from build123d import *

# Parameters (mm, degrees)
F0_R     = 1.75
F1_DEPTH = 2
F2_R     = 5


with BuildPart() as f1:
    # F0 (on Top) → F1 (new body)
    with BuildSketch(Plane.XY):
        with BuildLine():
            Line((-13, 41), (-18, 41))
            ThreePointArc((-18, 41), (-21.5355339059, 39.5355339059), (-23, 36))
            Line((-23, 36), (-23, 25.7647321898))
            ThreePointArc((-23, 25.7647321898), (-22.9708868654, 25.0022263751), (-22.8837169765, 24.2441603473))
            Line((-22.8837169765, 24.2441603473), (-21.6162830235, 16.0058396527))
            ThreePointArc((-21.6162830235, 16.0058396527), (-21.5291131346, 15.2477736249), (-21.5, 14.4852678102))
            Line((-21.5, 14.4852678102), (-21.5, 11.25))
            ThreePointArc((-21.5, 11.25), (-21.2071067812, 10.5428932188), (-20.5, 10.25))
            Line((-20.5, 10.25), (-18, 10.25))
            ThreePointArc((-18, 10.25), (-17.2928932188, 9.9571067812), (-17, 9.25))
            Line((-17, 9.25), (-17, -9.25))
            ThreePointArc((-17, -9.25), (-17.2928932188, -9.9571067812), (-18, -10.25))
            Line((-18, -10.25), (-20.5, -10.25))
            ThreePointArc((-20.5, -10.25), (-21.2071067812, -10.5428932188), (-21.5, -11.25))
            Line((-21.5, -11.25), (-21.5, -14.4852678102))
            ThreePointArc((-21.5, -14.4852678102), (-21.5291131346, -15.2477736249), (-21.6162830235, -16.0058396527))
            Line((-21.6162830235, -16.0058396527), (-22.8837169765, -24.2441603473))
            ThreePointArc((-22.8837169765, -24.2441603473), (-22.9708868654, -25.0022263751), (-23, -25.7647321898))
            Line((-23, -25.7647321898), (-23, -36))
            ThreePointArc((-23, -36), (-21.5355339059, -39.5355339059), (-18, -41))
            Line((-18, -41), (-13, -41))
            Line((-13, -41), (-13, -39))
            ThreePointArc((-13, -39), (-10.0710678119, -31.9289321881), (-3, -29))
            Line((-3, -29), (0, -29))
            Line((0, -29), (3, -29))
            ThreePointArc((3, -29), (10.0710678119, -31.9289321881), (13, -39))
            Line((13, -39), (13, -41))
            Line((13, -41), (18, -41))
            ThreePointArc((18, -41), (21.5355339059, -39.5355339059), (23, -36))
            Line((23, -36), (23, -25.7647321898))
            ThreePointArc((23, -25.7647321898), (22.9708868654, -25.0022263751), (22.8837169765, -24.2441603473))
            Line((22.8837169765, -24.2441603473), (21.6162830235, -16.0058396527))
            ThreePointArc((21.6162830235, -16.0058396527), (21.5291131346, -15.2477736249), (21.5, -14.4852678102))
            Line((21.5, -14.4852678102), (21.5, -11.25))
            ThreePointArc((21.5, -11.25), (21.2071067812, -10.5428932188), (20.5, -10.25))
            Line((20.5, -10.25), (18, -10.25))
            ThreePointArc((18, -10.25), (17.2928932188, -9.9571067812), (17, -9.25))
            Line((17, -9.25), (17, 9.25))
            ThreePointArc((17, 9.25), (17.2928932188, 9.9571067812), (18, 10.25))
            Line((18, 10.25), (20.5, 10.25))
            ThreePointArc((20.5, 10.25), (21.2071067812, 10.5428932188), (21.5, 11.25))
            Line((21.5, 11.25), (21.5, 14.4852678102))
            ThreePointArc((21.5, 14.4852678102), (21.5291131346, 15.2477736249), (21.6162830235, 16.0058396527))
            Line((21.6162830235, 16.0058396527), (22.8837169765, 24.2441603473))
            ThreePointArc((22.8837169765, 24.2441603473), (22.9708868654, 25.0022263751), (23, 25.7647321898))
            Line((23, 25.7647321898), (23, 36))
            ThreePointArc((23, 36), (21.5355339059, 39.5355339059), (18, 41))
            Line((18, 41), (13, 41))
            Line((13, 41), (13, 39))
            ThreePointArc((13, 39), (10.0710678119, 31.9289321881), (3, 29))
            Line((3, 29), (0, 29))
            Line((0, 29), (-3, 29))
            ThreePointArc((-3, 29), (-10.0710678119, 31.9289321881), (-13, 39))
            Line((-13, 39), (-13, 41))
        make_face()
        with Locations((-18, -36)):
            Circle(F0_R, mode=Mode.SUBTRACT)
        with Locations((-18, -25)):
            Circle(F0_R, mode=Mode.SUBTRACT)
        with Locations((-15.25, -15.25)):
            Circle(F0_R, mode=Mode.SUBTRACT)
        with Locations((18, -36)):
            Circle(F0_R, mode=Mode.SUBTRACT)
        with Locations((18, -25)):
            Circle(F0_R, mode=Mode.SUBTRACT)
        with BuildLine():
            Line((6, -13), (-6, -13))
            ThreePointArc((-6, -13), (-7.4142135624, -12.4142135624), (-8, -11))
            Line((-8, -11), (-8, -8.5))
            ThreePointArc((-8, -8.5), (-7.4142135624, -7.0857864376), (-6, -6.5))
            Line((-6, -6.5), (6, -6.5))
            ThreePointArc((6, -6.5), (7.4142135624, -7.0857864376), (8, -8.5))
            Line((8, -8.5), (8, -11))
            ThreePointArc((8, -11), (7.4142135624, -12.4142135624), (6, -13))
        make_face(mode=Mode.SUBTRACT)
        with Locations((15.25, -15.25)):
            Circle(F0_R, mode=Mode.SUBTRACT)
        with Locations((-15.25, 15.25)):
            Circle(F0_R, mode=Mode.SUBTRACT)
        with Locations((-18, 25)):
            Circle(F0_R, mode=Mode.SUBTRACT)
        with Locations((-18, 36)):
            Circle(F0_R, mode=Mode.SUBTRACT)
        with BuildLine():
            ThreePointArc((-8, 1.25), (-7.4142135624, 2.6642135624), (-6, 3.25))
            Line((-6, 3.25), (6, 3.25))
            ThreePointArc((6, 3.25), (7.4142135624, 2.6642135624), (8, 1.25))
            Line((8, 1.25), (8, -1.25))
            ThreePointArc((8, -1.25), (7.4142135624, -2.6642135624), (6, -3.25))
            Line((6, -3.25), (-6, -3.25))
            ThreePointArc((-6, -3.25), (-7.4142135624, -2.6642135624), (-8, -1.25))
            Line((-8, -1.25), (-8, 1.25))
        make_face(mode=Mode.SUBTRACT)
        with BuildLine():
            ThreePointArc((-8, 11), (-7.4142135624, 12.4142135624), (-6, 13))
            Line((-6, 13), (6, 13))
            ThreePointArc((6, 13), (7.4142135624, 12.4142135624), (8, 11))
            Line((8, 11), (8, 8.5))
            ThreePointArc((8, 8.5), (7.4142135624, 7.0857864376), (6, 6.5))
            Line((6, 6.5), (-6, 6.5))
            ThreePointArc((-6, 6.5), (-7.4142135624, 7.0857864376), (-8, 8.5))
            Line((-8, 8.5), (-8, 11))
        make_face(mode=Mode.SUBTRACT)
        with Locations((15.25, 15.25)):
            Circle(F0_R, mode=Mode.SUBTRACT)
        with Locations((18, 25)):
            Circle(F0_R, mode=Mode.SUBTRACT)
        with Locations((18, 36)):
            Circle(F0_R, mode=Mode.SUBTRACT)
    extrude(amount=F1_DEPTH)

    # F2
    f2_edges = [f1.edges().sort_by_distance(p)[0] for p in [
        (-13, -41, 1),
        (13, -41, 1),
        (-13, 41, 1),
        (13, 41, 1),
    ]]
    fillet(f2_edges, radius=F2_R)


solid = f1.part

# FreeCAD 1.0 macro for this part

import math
import FreeCAD as App
import Part
import Sketcher
Q = App.Units.Quantity


def edges_at(feature, points):
    """Names of the edges that pass closest to the given points."""
    edges = feature.Shape.Edges
    near = lambda p: min(range(len(edges)), key=lambda i: edges[i].distToShape(Part.Vertex(*p))[0])
    return sorted({f"Edge{near(p) + 1}" for p in points})

doc = App.newDocument("Part")
body = doc.addObject("PartDesign::Body", "Body")

# Sketch on XY plane
sketch1 = body.newObject("Sketcher::SketchObject", "Sketch")
sketch1.AttachmentSupport = (doc.getObject("XY_Plane"), [""])
sketch1.MapMode = "FlatFace"
sketch1.addGeometry(Part.LineSegment(App.Vector(-13, 41, 0), App.Vector(-18, 41, 0)), False)
sketch1.addGeometry(Part.ArcOfCircle(Part.Circle(App.Vector(-18, 36, 0), App.Vector(0, 0, 1), 5), math.radians(90), math.radians(180)), False)
sketch1.addGeometry(Part.LineSegment(App.Vector(-23, 36, 0), App.Vector(-23, 25.8, 0)), False)
sketch1.addGeometry(Part.ArcOfCircle(Part.Circle(App.Vector(-13, 25.8, 0), App.Vector(0, 0, 1), 10), math.radians(180), math.radians(188.75)), False)
sketch1.addGeometry(Part.LineSegment(App.Vector(-22.9, 24.2, 0), App.Vector(-21.6, 16, 0)), False)
sketch1.addGeometry(Part.ArcOfCircle(Part.Circle(App.Vector(-31.5, 14.5, 0), App.Vector(0, 0, 1), 10), math.radians(0), math.radians(8.75)), False)
sketch1.addGeometry(Part.LineSegment(App.Vector(-21.5, 14.5, 0), App.Vector(-21.5, 11.2, 0)), False)
sketch1.addGeometry(Part.ArcOfCircle(Part.Circle(App.Vector(-20.5, 11.2, 0), App.Vector(0, 0, 1), 1), math.radians(180), math.radians(270)), False)
sketch1.addGeometry(Part.LineSegment(App.Vector(-20.5, 10.2, 0), App.Vector(-18, 10.2, 0)), False)
sketch1.addGeometry(Part.ArcOfCircle(Part.Circle(App.Vector(-18, 9.2, 0), App.Vector(0, 0, 1), 1), math.radians(0), math.radians(90)), False)
sketch1.addGeometry(Part.LineSegment(App.Vector(-17, 9.2, 0), App.Vector(-17, -9.2, 0)), False)
sketch1.addGeometry(Part.ArcOfCircle(Part.Circle(App.Vector(-18, -9.2, 0), App.Vector(0, 0, 1), 1), math.radians(-90), math.radians(0)), False)
sketch1.addGeometry(Part.LineSegment(App.Vector(-18, -10.2, 0), App.Vector(-20.5, -10.2, 0)), False)
sketch1.addGeometry(Part.ArcOfCircle(Part.Circle(App.Vector(-20.5, -11.2, 0), App.Vector(0, 0, 1), 1), math.radians(90), math.radians(180)), False)
sketch1.addGeometry(Part.LineSegment(App.Vector(-21.5, -11.2, 0), App.Vector(-21.5, -14.5, 0)), False)
sketch1.addGeometry(Part.ArcOfCircle(Part.Circle(App.Vector(-31.5, -14.5, 0), App.Vector(0, 0, 1), 10), math.radians(-8.75), math.radians(0)), False)
sketch1.addGeometry(Part.LineSegment(App.Vector(-21.6, -16, 0), App.Vector(-22.9, -24.2, 0)), False)
sketch1.addGeometry(Part.ArcOfCircle(Part.Circle(App.Vector(-13, -25.8, 0), App.Vector(0, 0, 1), 10), math.radians(171.25), math.radians(180)), False)
sketch1.addGeometry(Part.LineSegment(App.Vector(-23, -25.8, 0), App.Vector(-23, -36, 0)), False)
sketch1.addGeometry(Part.ArcOfCircle(Part.Circle(App.Vector(-18, -36, 0), App.Vector(0, 0, 1), 5), math.radians(180), math.radians(270)), False)
sketch1.addGeometry(Part.LineSegment(App.Vector(-18, -41, 0), App.Vector(-13, -41, 0)), False)
sketch1.addGeometry(Part.LineSegment(App.Vector(-13, -41, 0), App.Vector(-13, -39, 0)), False)
sketch1.addGeometry(Part.ArcOfCircle(Part.Circle(App.Vector(-3, -39, 0), App.Vector(0, 0, 1), 10), math.radians(90), math.radians(180)), False)
sketch1.addGeometry(Part.LineSegment(App.Vector(-3, -29, 0), App.Vector(3, -29, 0)), False)
sketch1.addGeometry(Part.ArcOfCircle(Part.Circle(App.Vector(3, -39, 0), App.Vector(0, 0, 1), 10), math.radians(0), math.radians(90)), False)
sketch1.addGeometry(Part.LineSegment(App.Vector(13, -39, 0), App.Vector(13, -41, 0)), False)
sketch1.addGeometry(Part.LineSegment(App.Vector(13, -41, 0), App.Vector(18, -41, 0)), False)
sketch1.addGeometry(Part.ArcOfCircle(Part.Circle(App.Vector(18, -36, 0), App.Vector(0, 0, 1), 5), math.radians(-90), math.radians(0)), False)
sketch1.addGeometry(Part.LineSegment(App.Vector(23, -36, 0), App.Vector(23, -25.8, 0)), False)
sketch1.addGeometry(Part.ArcOfCircle(Part.Circle(App.Vector(13, -25.8, 0), App.Vector(0, 0, 1), 10), math.radians(0), math.radians(8.75)), False)
sketch1.addGeometry(Part.LineSegment(App.Vector(22.9, -24.2, 0), App.Vector(21.6, -16, 0)), False)
sketch1.addGeometry(Part.ArcOfCircle(Part.Circle(App.Vector(31.5, -14.5, 0), App.Vector(0, 0, 1), 10), math.radians(180), math.radians(188.75)), False)
sketch1.addGeometry(Part.LineSegment(App.Vector(21.5, -14.5, 0), App.Vector(21.5, -11.2, 0)), False)
sketch1.addGeometry(Part.ArcOfCircle(Part.Circle(App.Vector(20.5, -11.2, 0), App.Vector(0, 0, 1), 1), math.radians(0), math.radians(90)), False)
sketch1.addGeometry(Part.LineSegment(App.Vector(20.5, -10.2, 0), App.Vector(18, -10.2, 0)), False)
sketch1.addGeometry(Part.ArcOfCircle(Part.Circle(App.Vector(18, -9.2, 0), App.Vector(0, 0, 1), 1), math.radians(180), math.radians(270)), False)
sketch1.addGeometry(Part.LineSegment(App.Vector(17, -9.2, 0), App.Vector(17, 9.2, 0)), False)
sketch1.addGeometry(Part.ArcOfCircle(Part.Circle(App.Vector(18, 9.2, 0), App.Vector(0, 0, 1), 1), math.radians(90), math.radians(180)), False)
sketch1.addGeometry(Part.LineSegment(App.Vector(18, 10.2, 0), App.Vector(20.5, 10.2, 0)), False)
sketch1.addGeometry(Part.ArcOfCircle(Part.Circle(App.Vector(20.5, 11.2, 0), App.Vector(0, 0, 1), 1), math.radians(-90), math.radians(0)), False)
sketch1.addGeometry(Part.LineSegment(App.Vector(21.5, 11.2, 0), App.Vector(21.5, 14.5, 0)), False)
sketch1.addGeometry(Part.ArcOfCircle(Part.Circle(App.Vector(31.5, 14.5, 0), App.Vector(0, 0, 1), 10), math.radians(171.25), math.radians(180)), False)
sketch1.addGeometry(Part.LineSegment(App.Vector(21.6, 16, 0), App.Vector(22.9, 24.2, 0)), False)
sketch1.addGeometry(Part.ArcOfCircle(Part.Circle(App.Vector(13, 25.8, 0), App.Vector(0, 0, 1), 10), math.radians(-8.75), math.radians(0)), False)
sketch1.addGeometry(Part.LineSegment(App.Vector(23, 25.8, 0), App.Vector(23, 36, 0)), False)
sketch1.addGeometry(Part.ArcOfCircle(Part.Circle(App.Vector(18, 36, 0), App.Vector(0, 0, 1), 5), math.radians(0), math.radians(90)), False)
sketch1.addGeometry(Part.LineSegment(App.Vector(18, 41, 0), App.Vector(13, 41, 0)), False)
sketch1.addGeometry(Part.LineSegment(App.Vector(13, 41, 0), App.Vector(13, 39, 0)), False)
sketch1.addGeometry(Part.ArcOfCircle(Part.Circle(App.Vector(3, 39, 0), App.Vector(0, 0, 1), 10), math.radians(-90), math.radians(0)), False)
sketch1.addGeometry(Part.LineSegment(App.Vector(3, 29, 0), App.Vector(-3, 29, 0)), False)
sketch1.addGeometry(Part.ArcOfCircle(Part.Circle(App.Vector(-3, 39, 0), App.Vector(0, 0, 1), 10), math.radians(180), math.radians(270)), False)
sketch1.addGeometry(Part.LineSegment(App.Vector(-13, 39, 0), App.Vector(-13, 41, 0)), False)
sketch1.addGeometry(Part.Circle(App.Vector(-18, -36, 0), App.Vector(0, 0, 1), 1.8), False)
sketch1.addGeometry(Part.Circle(App.Vector(-18, -25, 0), App.Vector(0, 0, 1), 1.8), False)
sketch1.addGeometry(Part.Circle(App.Vector(-15.2, -15.2, 0), App.Vector(0, 0, 1), 1.8), False)
sketch1.addGeometry(Part.Circle(App.Vector(18, -36, 0), App.Vector(0, 0, 1), 1.8), False)
sketch1.addGeometry(Part.Circle(App.Vector(18, -25, 0), App.Vector(0, 0, 1), 1.8), False)
sketch1.addGeometry(Part.ArcOfCircle(Part.Circle(App.Vector(6, -11, 0), App.Vector(0, 0, 1), 2), math.radians(-90), math.radians(0)), False)
sketch1.addGeometry(Part.LineSegment(App.Vector(6, -13, 0), App.Vector(-6, -13, 0)), False)
sketch1.addGeometry(Part.ArcOfCircle(Part.Circle(App.Vector(-6, -11, 0), App.Vector(0, 0, 1), 2), math.radians(180), math.radians(270)), False)
sketch1.addGeometry(Part.LineSegment(App.Vector(-8, -11, 0), App.Vector(-8, -8.5, 0)), False)
sketch1.addGeometry(Part.ArcOfCircle(Part.Circle(App.Vector(-6, -8.5, 0), App.Vector(0, 0, 1), 2), math.radians(90), math.radians(180)), False)
sketch1.addGeometry(Part.LineSegment(App.Vector(-6, -6.5, 0), App.Vector(6, -6.5, 0)), False)
sketch1.addGeometry(Part.ArcOfCircle(Part.Circle(App.Vector(6, -8.5, 0), App.Vector(0, 0, 1), 2), math.radians(0), math.radians(90)), False)
sketch1.addGeometry(Part.LineSegment(App.Vector(8, -8.5, 0), App.Vector(8, -11, 0)), False)
sketch1.addGeometry(Part.Circle(App.Vector(15.2, -15.2, 0), App.Vector(0, 0, 1), 1.8), False)
sketch1.addGeometry(Part.Circle(App.Vector(-15.2, 15.2, 0), App.Vector(0, 0, 1), 1.8), False)
sketch1.addGeometry(Part.Circle(App.Vector(-18, 25, 0), App.Vector(0, 0, 1), 1.8), False)
sketch1.addGeometry(Part.Circle(App.Vector(-18, 36, 0), App.Vector(0, 0, 1), 1.8), False)
sketch1.addGeometry(Part.LineSegment(App.Vector(-8, -1.2, 0), App.Vector(-8, 1.2, 0)), False)
sketch1.addGeometry(Part.ArcOfCircle(Part.Circle(App.Vector(-6, 1.2, 0), App.Vector(0, 0, 1), 2), math.radians(90), math.radians(180)), False)
sketch1.addGeometry(Part.LineSegment(App.Vector(-6, 3.2, 0), App.Vector(6, 3.2, 0)), False)
sketch1.addGeometry(Part.ArcOfCircle(Part.Circle(App.Vector(6, 1.2, 0), App.Vector(0, 0, 1), 2), math.radians(0), math.radians(90)), False)
sketch1.addGeometry(Part.LineSegment(App.Vector(8, 1.2, 0), App.Vector(8, -1.2, 0)), False)
sketch1.addGeometry(Part.ArcOfCircle(Part.Circle(App.Vector(6, -1.2, 0), App.Vector(0, 0, 1), 2), math.radians(-90), math.radians(0)), False)
sketch1.addGeometry(Part.LineSegment(App.Vector(6, -3.2, 0), App.Vector(-6, -3.2, 0)), False)
sketch1.addGeometry(Part.ArcOfCircle(Part.Circle(App.Vector(-6, -1.2, 0), App.Vector(0, 0, 1), 2), math.radians(180), math.radians(270)), False)
sketch1.addGeometry(Part.LineSegment(App.Vector(-8, 8.5, 0), App.Vector(-8, 11, 0)), False)
sketch1.addGeometry(Part.ArcOfCircle(Part.Circle(App.Vector(-6, 11, 0), App.Vector(0, 0, 1), 2), math.radians(90), math.radians(180)), False)
sketch1.addGeometry(Part.LineSegment(App.Vector(-6, 13, 0), App.Vector(6, 13, 0)), False)
sketch1.addGeometry(Part.ArcOfCircle(Part.Circle(App.Vector(6, 11, 0), App.Vector(0, 0, 1), 2), math.radians(0), math.radians(90)), False)
sketch1.addGeometry(Part.LineSegment(App.Vector(8, 11, 0), App.Vector(8, 8.5, 0)), False)
sketch1.addGeometry(Part.ArcOfCircle(Part.Circle(App.Vector(6, 8.5, 0), App.Vector(0, 0, 1), 2), math.radians(-90), math.radians(0)), False)
sketch1.addGeometry(Part.LineSegment(App.Vector(6, 6.5, 0), App.Vector(-6, 6.5, 0)), False)
sketch1.addGeometry(Part.ArcOfCircle(Part.Circle(App.Vector(-6, 8.5, 0), App.Vector(0, 0, 1), 2), math.radians(180), math.radians(270)), False)
sketch1.addGeometry(Part.Circle(App.Vector(15.2, 15.2, 0), App.Vector(0, 0, 1), 1.8), False)
sketch1.addGeometry(Part.Circle(App.Vector(18, 25, 0), App.Vector(0, 0, 1), 1.8), False)
sketch1.addGeometry(Part.Circle(App.Vector(18, 36, 0), App.Vector(0, 0, 1), 1.8), False)
sketch1.addConstraint(Sketcher.Constraint("Tangent", 0, 2, 1, 1))
sketch1.addConstraint(Sketcher.Constraint("Tangent", 1, 2, 2, 1))
sketch1.addConstraint(Sketcher.Constraint("Tangent", 2, 2, 3, 1))
sketch1.addConstraint(Sketcher.Constraint("Tangent", 3, 2, 4, 1))
sketch1.addConstraint(Sketcher.Constraint("Tangent", 4, 2, 5, 2))
sketch1.addConstraint(Sketcher.Constraint("Tangent", 5, 1, 6, 1))
sketch1.addConstraint(Sketcher.Constraint("Tangent", 6, 2, 7, 1))
sketch1.addConstraint(Sketcher.Constraint("Tangent", 7, 2, 8, 1))
sketch1.addConstraint(Sketcher.Constraint("Tangent", 8, 2, 9, 2))
sketch1.addConstraint(Sketcher.Constraint("Tangent", 9, 1, 10, 1))
sketch1.addConstraint(Sketcher.Constraint("Tangent", 10, 2, 11, 2))
sketch1.addConstraint(Sketcher.Constraint("Tangent", 11, 1, 12, 1))
sketch1.addConstraint(Sketcher.Constraint("Tangent", 12, 2, 13, 1))
sketch1.addConstraint(Sketcher.Constraint("Tangent", 13, 2, 14, 1))
sketch1.addConstraint(Sketcher.Constraint("Tangent", 14, 2, 15, 2))
sketch1.addConstraint(Sketcher.Constraint("Tangent", 15, 1, 16, 1))
sketch1.addConstraint(Sketcher.Constraint("Tangent", 16, 2, 17, 1))
sketch1.addConstraint(Sketcher.Constraint("Tangent", 17, 2, 18, 1))
sketch1.addConstraint(Sketcher.Constraint("Tangent", 18, 2, 19, 1))
sketch1.addConstraint(Sketcher.Constraint("Tangent", 19, 2, 20, 1))
sketch1.addConstraint(Sketcher.Constraint("Coincident", 20, 2, 21, 1))
sketch1.addConstraint(Sketcher.Constraint("Tangent", 21, 2, 22, 2))
sketch1.addConstraint(Sketcher.Constraint("Tangent", 22, 1, 23, 1))
sketch1.addConstraint(Sketcher.Constraint("Tangent", 23, 2, 24, 2))
sketch1.addConstraint(Sketcher.Constraint("Tangent", 24, 1, 25, 1))
sketch1.addConstraint(Sketcher.Constraint("Coincident", 25, 2, 26, 1))
sketch1.addConstraint(Sketcher.Constraint("Tangent", 26, 2, 27, 1))
sketch1.addConstraint(Sketcher.Constraint("Tangent", 27, 2, 28, 1))
sketch1.addConstraint(Sketcher.Constraint("Tangent", 28, 2, 29, 1))
sketch1.addConstraint(Sketcher.Constraint("Tangent", 29, 2, 30, 1))
sketch1.addConstraint(Sketcher.Constraint("Tangent", 30, 2, 31, 2))
sketch1.addConstraint(Sketcher.Constraint("Tangent", 31, 1, 32, 1))
sketch1.addConstraint(Sketcher.Constraint("Tangent", 32, 2, 33, 1))
sketch1.addConstraint(Sketcher.Constraint("Tangent", 33, 2, 34, 1))
sketch1.addConstraint(Sketcher.Constraint("Tangent", 34, 2, 35, 2))
sketch1.addConstraint(Sketcher.Constraint("Tangent", 35, 1, 36, 1))
sketch1.addConstraint(Sketcher.Constraint("Tangent", 36, 2, 37, 2))
sketch1.addConstraint(Sketcher.Constraint("Tangent", 37, 1, 38, 1))
sketch1.addConstraint(Sketcher.Constraint("Tangent", 38, 2, 39, 1))
sketch1.addConstraint(Sketcher.Constraint("Tangent", 39, 2, 40, 1))
sketch1.addConstraint(Sketcher.Constraint("Tangent", 40, 2, 41, 2))
sketch1.addConstraint(Sketcher.Constraint("Tangent", 41, 1, 42, 1))
sketch1.addConstraint(Sketcher.Constraint("Tangent", 42, 2, 43, 1))
sketch1.addConstraint(Sketcher.Constraint("Tangent", 43, 2, 44, 1))
sketch1.addConstraint(Sketcher.Constraint("Tangent", 44, 2, 45, 1))
sketch1.addConstraint(Sketcher.Constraint("Tangent", 45, 2, 46, 1))
sketch1.addConstraint(Sketcher.Constraint("Coincident", 46, 2, 47, 1))
sketch1.addConstraint(Sketcher.Constraint("Tangent", 47, 2, 48, 2))
sketch1.addConstraint(Sketcher.Constraint("Tangent", 48, 1, 49, 1))
sketch1.addConstraint(Sketcher.Constraint("Tangent", 49, 2, 50, 2))
sketch1.addConstraint(Sketcher.Constraint("Tangent", 50, 1, 51, 1))
sketch1.addConstraint(Sketcher.Constraint("Coincident", 51, 2, 0, 1))
sketch1.addConstraint(Sketcher.Constraint("Tangent", 57, 1, 58, 1))
sketch1.addConstraint(Sketcher.Constraint("Tangent", 58, 2, 59, 2))
sketch1.addConstraint(Sketcher.Constraint("Tangent", 59, 1, 60, 1))
sketch1.addConstraint(Sketcher.Constraint("Tangent", 60, 2, 61, 2))
sketch1.addConstraint(Sketcher.Constraint("Tangent", 61, 1, 62, 1))
sketch1.addConstraint(Sketcher.Constraint("Tangent", 62, 2, 63, 2))
sketch1.addConstraint(Sketcher.Constraint("Tangent", 63, 1, 64, 1))
sketch1.addConstraint(Sketcher.Constraint("Tangent", 64, 2, 57, 2))
sketch1.addConstraint(Sketcher.Constraint("Tangent", 69, 2, 70, 2))
sketch1.addConstraint(Sketcher.Constraint("Tangent", 70, 1, 71, 1))
sketch1.addConstraint(Sketcher.Constraint("Tangent", 71, 2, 72, 2))
sketch1.addConstraint(Sketcher.Constraint("Tangent", 72, 1, 73, 1))
sketch1.addConstraint(Sketcher.Constraint("Tangent", 73, 2, 74, 2))
sketch1.addConstraint(Sketcher.Constraint("Tangent", 74, 1, 75, 1))
sketch1.addConstraint(Sketcher.Constraint("Tangent", 75, 2, 76, 2))
sketch1.addConstraint(Sketcher.Constraint("Tangent", 76, 1, 69, 1))
sketch1.addConstraint(Sketcher.Constraint("Tangent", 77, 2, 78, 2))
sketch1.addConstraint(Sketcher.Constraint("Tangent", 78, 1, 79, 1))
sketch1.addConstraint(Sketcher.Constraint("Tangent", 79, 2, 80, 2))
sketch1.addConstraint(Sketcher.Constraint("Tangent", 80, 1, 81, 1))
sketch1.addConstraint(Sketcher.Constraint("Tangent", 81, 2, 82, 2))
sketch1.addConstraint(Sketcher.Constraint("Tangent", 82, 1, 83, 1))
sketch1.addConstraint(Sketcher.Constraint("Tangent", 83, 2, 84, 2))
sketch1.addConstraint(Sketcher.Constraint("Tangent", 84, 1, 77, 1))
sketch1.addConstraint(Sketcher.Constraint("Horizontal", 0))
sketch1.addConstraint(Sketcher.Constraint("Vertical", 2))
sketch1.addConstraint(Sketcher.Constraint("Vertical", 6))
sketch1.addConstraint(Sketcher.Constraint("Horizontal", 8))
sketch1.addConstraint(Sketcher.Constraint("Vertical", 10))
sketch1.addConstraint(Sketcher.Constraint("Horizontal", 12))
sketch1.addConstraint(Sketcher.Constraint("Vertical", 14))
sketch1.addConstraint(Sketcher.Constraint("Vertical", 18))
sketch1.addConstraint(Sketcher.Constraint("Horizontal", 20))
sketch1.addConstraint(Sketcher.Constraint("Vertical", 21))
sketch1.addConstraint(Sketcher.Constraint("Horizontal", 23))
sketch1.addConstraint(Sketcher.Constraint("Vertical", 25))
sketch1.addConstraint(Sketcher.Constraint("Horizontal", 26))
sketch1.addConstraint(Sketcher.Constraint("Vertical", 28))
sketch1.addConstraint(Sketcher.Constraint("Vertical", 32))
sketch1.addConstraint(Sketcher.Constraint("Horizontal", 34))
sketch1.addConstraint(Sketcher.Constraint("Vertical", 36))
sketch1.addConstraint(Sketcher.Constraint("Horizontal", 38))
sketch1.addConstraint(Sketcher.Constraint("Vertical", 40))
sketch1.addConstraint(Sketcher.Constraint("Vertical", 44))
sketch1.addConstraint(Sketcher.Constraint("Horizontal", 46))
sketch1.addConstraint(Sketcher.Constraint("Vertical", 47))
sketch1.addConstraint(Sketcher.Constraint("Horizontal", 49))
sketch1.addConstraint(Sketcher.Constraint("Vertical", 51))
sketch1.addConstraint(Sketcher.Constraint("Horizontal", 58))
sketch1.addConstraint(Sketcher.Constraint("Vertical", 60))
sketch1.addConstraint(Sketcher.Constraint("Horizontal", 62))
sketch1.addConstraint(Sketcher.Constraint("Vertical", 64))
sketch1.addConstraint(Sketcher.Constraint("Vertical", 69))
sketch1.addConstraint(Sketcher.Constraint("Horizontal", 71))
sketch1.addConstraint(Sketcher.Constraint("Vertical", 73))
sketch1.addConstraint(Sketcher.Constraint("Horizontal", 75))
sketch1.addConstraint(Sketcher.Constraint("Vertical", 77))
sketch1.addConstraint(Sketcher.Constraint("Horizontal", 79))
sketch1.addConstraint(Sketcher.Constraint("Vertical", 81))
sketch1.addConstraint(Sketcher.Constraint("Horizontal", 83))
sketch1.addConstraint(Sketcher.Constraint("Coincident", 52, 3, 19, 3))
sketch1.addConstraint(Sketcher.Constraint("Coincident", 55, 3, 27, 3))
sketch1.addConstraint(Sketcher.Constraint("Coincident", 68, 3, 1, 3))
sketch1.addConstraint(Sketcher.Constraint("Coincident", 87, 3, 45, 3))
sketch1.addConstraint(Sketcher.Constraint("Equal", 3, 5))
sketch1.addConstraint(Sketcher.Constraint("Equal", 7, 9))
sketch1.addConstraint(Sketcher.Constraint("Equal", 9, 11))
sketch1.addConstraint(Sketcher.Constraint("Equal", 11, 13))
sketch1.addConstraint(Sketcher.Constraint("Equal", 5, 15))
sketch1.addConstraint(Sketcher.Constraint("Equal", 15, 17))
sketch1.addConstraint(Sketcher.Constraint("Equal", 1, 19))
sketch1.addConstraint(Sketcher.Constraint("Equal", 17, 22))
sketch1.addConstraint(Sketcher.Constraint("Equal", 22, 24))
sketch1.addConstraint(Sketcher.Constraint("Equal", 19, 27))
sketch1.addConstraint(Sketcher.Constraint("Equal", 24, 29))
sketch1.addConstraint(Sketcher.Constraint("Equal", 29, 31))
sketch1.addConstraint(Sketcher.Constraint("Equal", 13, 33))
sketch1.addConstraint(Sketcher.Constraint("Equal", 33, 35))
sketch1.addConstraint(Sketcher.Constraint("Equal", 35, 37))
sketch1.addConstraint(Sketcher.Constraint("Equal", 37, 39))
sketch1.addConstraint(Sketcher.Constraint("Equal", 31, 41))
sketch1.addConstraint(Sketcher.Constraint("Equal", 41, 43))
sketch1.addConstraint(Sketcher.Constraint("Equal", 27, 45))
sketch1.addConstraint(Sketcher.Constraint("Equal", 43, 48))
sketch1.addConstraint(Sketcher.Constraint("Equal", 48, 50))
sketch1.addConstraint(Sketcher.Constraint("Equal", 52, 53))
sketch1.addConstraint(Sketcher.Constraint("Equal", 53, 54))
sketch1.addConstraint(Sketcher.Constraint("Equal", 54, 55))
sketch1.addConstraint(Sketcher.Constraint("Equal", 55, 56))
sketch1.addConstraint(Sketcher.Constraint("Equal", 57, 59))
sketch1.addConstraint(Sketcher.Constraint("Equal", 59, 61))
sketch1.addConstraint(Sketcher.Constraint("Equal", 61, 63))
sketch1.addConstraint(Sketcher.Constraint("Equal", 56, 65))
sketch1.addConstraint(Sketcher.Constraint("Equal", 65, 66))
sketch1.addConstraint(Sketcher.Constraint("Equal", 66, 67))
sketch1.addConstraint(Sketcher.Constraint("Equal", 67, 68))
sketch1.addConstraint(Sketcher.Constraint("Equal", 63, 70))
sketch1.addConstraint(Sketcher.Constraint("Equal", 70, 72))
sketch1.addConstraint(Sketcher.Constraint("Equal", 72, 74))
sketch1.addConstraint(Sketcher.Constraint("Equal", 74, 76))
sketch1.addConstraint(Sketcher.Constraint("Equal", 76, 78))
sketch1.addConstraint(Sketcher.Constraint("Equal", 78, 80))
sketch1.addConstraint(Sketcher.Constraint("Equal", 80, 82))
sketch1.addConstraint(Sketcher.Constraint("Equal", 82, 84))
sketch1.addConstraint(Sketcher.Constraint("Equal", 68, 85))
sketch1.addConstraint(Sketcher.Constraint("Equal", 85, 86))
sketch1.addConstraint(Sketcher.Constraint("Equal", 86, 87))
sketch1.addConstraint(Sketcher.Constraint("Symmetric", 1, 3, 27, 3, -1, 1))
sketch1.addConstraint(Sketcher.Constraint("Symmetric", 5, 3, 31, 3, -1, 1))
sketch1.addConstraint(Sketcher.Constraint("Symmetric", 9, 3, 35, 3, -1, 1))
sketch1.addConstraint(Sketcher.Constraint("Symmetric", 13, 3, 39, 3, -1, 1))
sketch1.addConstraint(Sketcher.Constraint("Symmetric", 17, 3, 43, 3, -1, 1))
sketch1.addConstraint(Sketcher.Constraint("Symmetric", 22, 3, 48, 3, -1, 1))
sketch1.addConstraint(Sketcher.Constraint("Symmetric", 65, 3, 66, 3, -1, 1))
sketch1.addConstraint(Sketcher.Constraint("Symmetric", 56, 3, 67, 3, -1, 1))
sketch1.addConstraint(Sketcher.Constraint("Symmetric", 70, 3, 74, 3, -1, 1))
sketch1.addConstraint(Sketcher.Constraint("Symmetric", 57, 3, 78, 3, -1, 1))
sketch1.addConstraint(Sketcher.Constraint("Symmetric", 61, 3, 82, 3, -1, 1))
sketch1.addConstraint(Sketcher.Constraint("Symmetric", 54, 3, 85, 3, -1, 1))
sketch1.addConstraint(Sketcher.Constraint("Symmetric", 53, 3, 86, 3, -1, 1))
sketch1.addConstraint(Sketcher.Constraint("Symmetric", 19, 3, 27, 3, -2))
sketch1.addConstraint(Sketcher.Constraint("Symmetric", 15, 3, 31, 3, -2))
sketch1.addConstraint(Sketcher.Constraint("Symmetric", 53, 3, 56, 3, -2))
sketch1.addConstraint(Sketcher.Constraint("Symmetric", 54, 3, 65, 3, -2))
sketch1.addConstraint(Sketcher.Constraint("Symmetric", 4, 2, 41, 1, -2))
sketch1.addConstraint(Sketcher.Constraint("Symmetric", 46, 2, 51, 2, -2))
sketch1.addConstraint(Sketcher.Constraint("Parallel", 4, 30))
sketch1.addConstraint(Sketcher.Constraint("Horizontal", 13, 3, 33, 3))
sketch1.addConstraint(Sketcher.Constraint("Vertical", 1, 3, 9, 3))
sketch1.addConstraint(Sketcher.Constraint("Vertical", 24, 3, 48, 3))
sketch1.addConstraint(Sketcher.Constraint("Vertical", 52, 3, 53, 3))
sketch1.addConstraint(Sketcher.Constraint("Vertical", 61, 3, 70, 3))
sketch1.addConstraint(Sketcher.Constraint("Vertical", 63, 3, 72, 3))
sketch1.addConstraint(Sketcher.Constraint("Vertical", 17, 3, 20, 2))
sketch1.addConstraint(Sketcher.Constraint("Equal", 38, 60))
sketch1.addConstraint(Sketcher.Constraint("Equal", 64, 69))
sketch1.addConstraint(Sketcher.Constraint("Radius", 1, Q("5 mm")))
sketch1.addConstraint(Sketcher.Constraint("Radius", 3, Q("10 mm")))
sketch1.addConstraint(Sketcher.Constraint("Radius", 7, Q("1 mm")))
sketch1.addConstraint(Sketcher.Constraint("Radius", 57, Q("2 mm")))
sketch1.addConstraint(Sketcher.Constraint("Diameter", 52, Q("3.5 mm")))
sketch1.addConstraint(Sketcher.Constraint("DistanceX", 23, 1, 23, 2, Q("6 mm")))
sketch1.addConstraint(Sketcher.Constraint("DistanceX", 58, 2, 58, 1, Q("12 mm")))
sketch1.addConstraint(Sketcher.Constraint("DistanceY", 21, 1, 21, 2, Q("2 mm")))
sketch1.addConstraint(Sketcher.Constraint("DistanceX", 8, 1, 8, 2, Q("2.5 mm")))
sketch1.addConstraint(Sketcher.Constraint("DistanceY", 10, 2, 10, 1, Q("18.5 mm")))
sketch1.addConstraint(Sketcher.Constraint("DistanceY", -1, 1, 1, 3, Q("36 mm")))
sketch1.addConstraint(Sketcher.Constraint("DistanceY", 53, 3, -1, 1, Q("25 mm")))
sketch1.addConstraint(Sketcher.Constraint("DistanceY", 57, 3, -1, 1, Q("11 mm")))
sketch1.addConstraint(Sketcher.Constraint("DistanceX", 54, 3, -1, 1, Q("15.25 mm")))
sketch1.addConstraint(Sketcher.Constraint("DistanceY", 54, 3, -1, 1, Q("15.25 mm")))
sketch1.addConstraint(Sketcher.Constraint("DistanceY", 2, 2, 2, 1, Q("10.235268 mm")))
sketch1.addConstraint(Sketcher.Constraint("DistanceY", 6, 2, 6, 1, Q("3.235268 mm")))
pad1 = body.newObject("PartDesign::Pad", "Pad")
pad1.Profile = sketch1
pad1.Length = 2
doc.recompute()

fillet = body.newObject("PartDesign::Fillet", "Fillet")
fillet.Base = (pad1, edges_at(pad1, [
    (-13, -41, 1),
    (13, -41, 1),
    (-13, 41, 1),
    (13, 41, 1),
]))
fillet.Radius = 5

doc.recompute()
